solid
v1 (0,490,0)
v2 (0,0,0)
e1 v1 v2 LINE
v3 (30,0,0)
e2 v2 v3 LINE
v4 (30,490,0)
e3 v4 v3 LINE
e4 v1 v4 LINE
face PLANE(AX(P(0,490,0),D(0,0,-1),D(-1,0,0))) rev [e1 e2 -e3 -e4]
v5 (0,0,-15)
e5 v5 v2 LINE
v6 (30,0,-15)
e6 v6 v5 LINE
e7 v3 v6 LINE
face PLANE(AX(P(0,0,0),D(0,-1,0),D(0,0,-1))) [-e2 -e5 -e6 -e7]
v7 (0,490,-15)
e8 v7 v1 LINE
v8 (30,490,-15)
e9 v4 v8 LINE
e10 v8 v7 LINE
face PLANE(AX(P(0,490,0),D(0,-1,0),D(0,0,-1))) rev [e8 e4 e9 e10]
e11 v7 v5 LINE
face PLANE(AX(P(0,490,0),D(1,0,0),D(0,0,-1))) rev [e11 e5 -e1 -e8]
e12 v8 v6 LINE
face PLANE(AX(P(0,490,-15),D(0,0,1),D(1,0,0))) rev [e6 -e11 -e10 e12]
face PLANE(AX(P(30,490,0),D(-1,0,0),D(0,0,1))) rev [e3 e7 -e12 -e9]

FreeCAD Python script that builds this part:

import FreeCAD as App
import Part
import Sketcher
from FreeCAD import Vector
Q = App.Units.Quantity

doc = App.newDocument("Part")
params = doc.addObject("Spreadsheet::Sheet", "Params")
for row, (alias, value) in enumerate([
    ("sketch1_width", "30 mm"),
    ("sketch1_height", "15 mm"),
    ("pad1_length", "490 mm"),
], start=1):
    params.set(f"A{row}", alias)
    params.set(f"B{row}", "=" + value)
    params.setAlias(f"B{row}", alias)

body = doc.addObject("PartDesign::Body", "Body")

sketch1 = body.newObject("Sketcher::SketchObject", "Sketch")
sketch1.AttachmentSupport = (doc.getObject("XZ_Plane"), [""])
sketch1.MapMode = "FlatFace"
sketch1.addGeometry(Part.LineSegment(Vector(0, -15, 0), Vector(0, 0, 0)), False)
sketch1.addGeometry(Part.LineSegment(Vector(0, 0, 0), Vector(30, 0, 0)), False)
sketch1.addGeometry(Part.LineSegment(Vector(30, 0, 0), Vector(30, -15, 0)), False)
sketch1.addGeometry(Part.LineSegment(Vector(30, -15, 0), Vector(0, -15, 0)), False)
sketch1.addConstraint(Sketcher.Constraint("Coincident", 0, 2, 1, 1))
sketch1.addConstraint(Sketcher.Constraint("Coincident", 1, 2, 2, 1))
sketch1.addConstraint(Sketcher.Constraint("Coincident", 2, 2, 3, 1))
sketch1.addConstraint(Sketcher.Constraint("Coincident", 3, 2, 0, 1))
sketch1.addConstraint(Sketcher.Constraint("Vertical", 0))
sketch1.addConstraint(Sketcher.Constraint("Horizontal", 1))
sketch1.addConstraint(Sketcher.Constraint("Vertical", 2))
sketch1.addConstraint(Sketcher.Constraint("Horizontal", 3))
sketch1.addConstraint(Sketcher.Constraint("Coincident", 0, 2, -1, 1))
sketch1.addConstraint(Sketcher.Constraint("DistanceX", 1, 1, 1, 2, Q("30 mm")))
sketch1.addConstraint(Sketcher.Constraint("DistanceY", 0, 1, 0, 2, Q("15 mm")))
sketch1.setExpression("Constraints[9]", "Params.sketch1_width")
sketch1.setExpression("Constraints[10]", "Params.sketch1_height")
pad1 = body.newObject("PartDesign::Pad", "Pad")
pad1.Profile = sketch1
pad1.setExpression("Length", "Params.pad1_length")
pad1.Reversed = True

doc.recompute()
